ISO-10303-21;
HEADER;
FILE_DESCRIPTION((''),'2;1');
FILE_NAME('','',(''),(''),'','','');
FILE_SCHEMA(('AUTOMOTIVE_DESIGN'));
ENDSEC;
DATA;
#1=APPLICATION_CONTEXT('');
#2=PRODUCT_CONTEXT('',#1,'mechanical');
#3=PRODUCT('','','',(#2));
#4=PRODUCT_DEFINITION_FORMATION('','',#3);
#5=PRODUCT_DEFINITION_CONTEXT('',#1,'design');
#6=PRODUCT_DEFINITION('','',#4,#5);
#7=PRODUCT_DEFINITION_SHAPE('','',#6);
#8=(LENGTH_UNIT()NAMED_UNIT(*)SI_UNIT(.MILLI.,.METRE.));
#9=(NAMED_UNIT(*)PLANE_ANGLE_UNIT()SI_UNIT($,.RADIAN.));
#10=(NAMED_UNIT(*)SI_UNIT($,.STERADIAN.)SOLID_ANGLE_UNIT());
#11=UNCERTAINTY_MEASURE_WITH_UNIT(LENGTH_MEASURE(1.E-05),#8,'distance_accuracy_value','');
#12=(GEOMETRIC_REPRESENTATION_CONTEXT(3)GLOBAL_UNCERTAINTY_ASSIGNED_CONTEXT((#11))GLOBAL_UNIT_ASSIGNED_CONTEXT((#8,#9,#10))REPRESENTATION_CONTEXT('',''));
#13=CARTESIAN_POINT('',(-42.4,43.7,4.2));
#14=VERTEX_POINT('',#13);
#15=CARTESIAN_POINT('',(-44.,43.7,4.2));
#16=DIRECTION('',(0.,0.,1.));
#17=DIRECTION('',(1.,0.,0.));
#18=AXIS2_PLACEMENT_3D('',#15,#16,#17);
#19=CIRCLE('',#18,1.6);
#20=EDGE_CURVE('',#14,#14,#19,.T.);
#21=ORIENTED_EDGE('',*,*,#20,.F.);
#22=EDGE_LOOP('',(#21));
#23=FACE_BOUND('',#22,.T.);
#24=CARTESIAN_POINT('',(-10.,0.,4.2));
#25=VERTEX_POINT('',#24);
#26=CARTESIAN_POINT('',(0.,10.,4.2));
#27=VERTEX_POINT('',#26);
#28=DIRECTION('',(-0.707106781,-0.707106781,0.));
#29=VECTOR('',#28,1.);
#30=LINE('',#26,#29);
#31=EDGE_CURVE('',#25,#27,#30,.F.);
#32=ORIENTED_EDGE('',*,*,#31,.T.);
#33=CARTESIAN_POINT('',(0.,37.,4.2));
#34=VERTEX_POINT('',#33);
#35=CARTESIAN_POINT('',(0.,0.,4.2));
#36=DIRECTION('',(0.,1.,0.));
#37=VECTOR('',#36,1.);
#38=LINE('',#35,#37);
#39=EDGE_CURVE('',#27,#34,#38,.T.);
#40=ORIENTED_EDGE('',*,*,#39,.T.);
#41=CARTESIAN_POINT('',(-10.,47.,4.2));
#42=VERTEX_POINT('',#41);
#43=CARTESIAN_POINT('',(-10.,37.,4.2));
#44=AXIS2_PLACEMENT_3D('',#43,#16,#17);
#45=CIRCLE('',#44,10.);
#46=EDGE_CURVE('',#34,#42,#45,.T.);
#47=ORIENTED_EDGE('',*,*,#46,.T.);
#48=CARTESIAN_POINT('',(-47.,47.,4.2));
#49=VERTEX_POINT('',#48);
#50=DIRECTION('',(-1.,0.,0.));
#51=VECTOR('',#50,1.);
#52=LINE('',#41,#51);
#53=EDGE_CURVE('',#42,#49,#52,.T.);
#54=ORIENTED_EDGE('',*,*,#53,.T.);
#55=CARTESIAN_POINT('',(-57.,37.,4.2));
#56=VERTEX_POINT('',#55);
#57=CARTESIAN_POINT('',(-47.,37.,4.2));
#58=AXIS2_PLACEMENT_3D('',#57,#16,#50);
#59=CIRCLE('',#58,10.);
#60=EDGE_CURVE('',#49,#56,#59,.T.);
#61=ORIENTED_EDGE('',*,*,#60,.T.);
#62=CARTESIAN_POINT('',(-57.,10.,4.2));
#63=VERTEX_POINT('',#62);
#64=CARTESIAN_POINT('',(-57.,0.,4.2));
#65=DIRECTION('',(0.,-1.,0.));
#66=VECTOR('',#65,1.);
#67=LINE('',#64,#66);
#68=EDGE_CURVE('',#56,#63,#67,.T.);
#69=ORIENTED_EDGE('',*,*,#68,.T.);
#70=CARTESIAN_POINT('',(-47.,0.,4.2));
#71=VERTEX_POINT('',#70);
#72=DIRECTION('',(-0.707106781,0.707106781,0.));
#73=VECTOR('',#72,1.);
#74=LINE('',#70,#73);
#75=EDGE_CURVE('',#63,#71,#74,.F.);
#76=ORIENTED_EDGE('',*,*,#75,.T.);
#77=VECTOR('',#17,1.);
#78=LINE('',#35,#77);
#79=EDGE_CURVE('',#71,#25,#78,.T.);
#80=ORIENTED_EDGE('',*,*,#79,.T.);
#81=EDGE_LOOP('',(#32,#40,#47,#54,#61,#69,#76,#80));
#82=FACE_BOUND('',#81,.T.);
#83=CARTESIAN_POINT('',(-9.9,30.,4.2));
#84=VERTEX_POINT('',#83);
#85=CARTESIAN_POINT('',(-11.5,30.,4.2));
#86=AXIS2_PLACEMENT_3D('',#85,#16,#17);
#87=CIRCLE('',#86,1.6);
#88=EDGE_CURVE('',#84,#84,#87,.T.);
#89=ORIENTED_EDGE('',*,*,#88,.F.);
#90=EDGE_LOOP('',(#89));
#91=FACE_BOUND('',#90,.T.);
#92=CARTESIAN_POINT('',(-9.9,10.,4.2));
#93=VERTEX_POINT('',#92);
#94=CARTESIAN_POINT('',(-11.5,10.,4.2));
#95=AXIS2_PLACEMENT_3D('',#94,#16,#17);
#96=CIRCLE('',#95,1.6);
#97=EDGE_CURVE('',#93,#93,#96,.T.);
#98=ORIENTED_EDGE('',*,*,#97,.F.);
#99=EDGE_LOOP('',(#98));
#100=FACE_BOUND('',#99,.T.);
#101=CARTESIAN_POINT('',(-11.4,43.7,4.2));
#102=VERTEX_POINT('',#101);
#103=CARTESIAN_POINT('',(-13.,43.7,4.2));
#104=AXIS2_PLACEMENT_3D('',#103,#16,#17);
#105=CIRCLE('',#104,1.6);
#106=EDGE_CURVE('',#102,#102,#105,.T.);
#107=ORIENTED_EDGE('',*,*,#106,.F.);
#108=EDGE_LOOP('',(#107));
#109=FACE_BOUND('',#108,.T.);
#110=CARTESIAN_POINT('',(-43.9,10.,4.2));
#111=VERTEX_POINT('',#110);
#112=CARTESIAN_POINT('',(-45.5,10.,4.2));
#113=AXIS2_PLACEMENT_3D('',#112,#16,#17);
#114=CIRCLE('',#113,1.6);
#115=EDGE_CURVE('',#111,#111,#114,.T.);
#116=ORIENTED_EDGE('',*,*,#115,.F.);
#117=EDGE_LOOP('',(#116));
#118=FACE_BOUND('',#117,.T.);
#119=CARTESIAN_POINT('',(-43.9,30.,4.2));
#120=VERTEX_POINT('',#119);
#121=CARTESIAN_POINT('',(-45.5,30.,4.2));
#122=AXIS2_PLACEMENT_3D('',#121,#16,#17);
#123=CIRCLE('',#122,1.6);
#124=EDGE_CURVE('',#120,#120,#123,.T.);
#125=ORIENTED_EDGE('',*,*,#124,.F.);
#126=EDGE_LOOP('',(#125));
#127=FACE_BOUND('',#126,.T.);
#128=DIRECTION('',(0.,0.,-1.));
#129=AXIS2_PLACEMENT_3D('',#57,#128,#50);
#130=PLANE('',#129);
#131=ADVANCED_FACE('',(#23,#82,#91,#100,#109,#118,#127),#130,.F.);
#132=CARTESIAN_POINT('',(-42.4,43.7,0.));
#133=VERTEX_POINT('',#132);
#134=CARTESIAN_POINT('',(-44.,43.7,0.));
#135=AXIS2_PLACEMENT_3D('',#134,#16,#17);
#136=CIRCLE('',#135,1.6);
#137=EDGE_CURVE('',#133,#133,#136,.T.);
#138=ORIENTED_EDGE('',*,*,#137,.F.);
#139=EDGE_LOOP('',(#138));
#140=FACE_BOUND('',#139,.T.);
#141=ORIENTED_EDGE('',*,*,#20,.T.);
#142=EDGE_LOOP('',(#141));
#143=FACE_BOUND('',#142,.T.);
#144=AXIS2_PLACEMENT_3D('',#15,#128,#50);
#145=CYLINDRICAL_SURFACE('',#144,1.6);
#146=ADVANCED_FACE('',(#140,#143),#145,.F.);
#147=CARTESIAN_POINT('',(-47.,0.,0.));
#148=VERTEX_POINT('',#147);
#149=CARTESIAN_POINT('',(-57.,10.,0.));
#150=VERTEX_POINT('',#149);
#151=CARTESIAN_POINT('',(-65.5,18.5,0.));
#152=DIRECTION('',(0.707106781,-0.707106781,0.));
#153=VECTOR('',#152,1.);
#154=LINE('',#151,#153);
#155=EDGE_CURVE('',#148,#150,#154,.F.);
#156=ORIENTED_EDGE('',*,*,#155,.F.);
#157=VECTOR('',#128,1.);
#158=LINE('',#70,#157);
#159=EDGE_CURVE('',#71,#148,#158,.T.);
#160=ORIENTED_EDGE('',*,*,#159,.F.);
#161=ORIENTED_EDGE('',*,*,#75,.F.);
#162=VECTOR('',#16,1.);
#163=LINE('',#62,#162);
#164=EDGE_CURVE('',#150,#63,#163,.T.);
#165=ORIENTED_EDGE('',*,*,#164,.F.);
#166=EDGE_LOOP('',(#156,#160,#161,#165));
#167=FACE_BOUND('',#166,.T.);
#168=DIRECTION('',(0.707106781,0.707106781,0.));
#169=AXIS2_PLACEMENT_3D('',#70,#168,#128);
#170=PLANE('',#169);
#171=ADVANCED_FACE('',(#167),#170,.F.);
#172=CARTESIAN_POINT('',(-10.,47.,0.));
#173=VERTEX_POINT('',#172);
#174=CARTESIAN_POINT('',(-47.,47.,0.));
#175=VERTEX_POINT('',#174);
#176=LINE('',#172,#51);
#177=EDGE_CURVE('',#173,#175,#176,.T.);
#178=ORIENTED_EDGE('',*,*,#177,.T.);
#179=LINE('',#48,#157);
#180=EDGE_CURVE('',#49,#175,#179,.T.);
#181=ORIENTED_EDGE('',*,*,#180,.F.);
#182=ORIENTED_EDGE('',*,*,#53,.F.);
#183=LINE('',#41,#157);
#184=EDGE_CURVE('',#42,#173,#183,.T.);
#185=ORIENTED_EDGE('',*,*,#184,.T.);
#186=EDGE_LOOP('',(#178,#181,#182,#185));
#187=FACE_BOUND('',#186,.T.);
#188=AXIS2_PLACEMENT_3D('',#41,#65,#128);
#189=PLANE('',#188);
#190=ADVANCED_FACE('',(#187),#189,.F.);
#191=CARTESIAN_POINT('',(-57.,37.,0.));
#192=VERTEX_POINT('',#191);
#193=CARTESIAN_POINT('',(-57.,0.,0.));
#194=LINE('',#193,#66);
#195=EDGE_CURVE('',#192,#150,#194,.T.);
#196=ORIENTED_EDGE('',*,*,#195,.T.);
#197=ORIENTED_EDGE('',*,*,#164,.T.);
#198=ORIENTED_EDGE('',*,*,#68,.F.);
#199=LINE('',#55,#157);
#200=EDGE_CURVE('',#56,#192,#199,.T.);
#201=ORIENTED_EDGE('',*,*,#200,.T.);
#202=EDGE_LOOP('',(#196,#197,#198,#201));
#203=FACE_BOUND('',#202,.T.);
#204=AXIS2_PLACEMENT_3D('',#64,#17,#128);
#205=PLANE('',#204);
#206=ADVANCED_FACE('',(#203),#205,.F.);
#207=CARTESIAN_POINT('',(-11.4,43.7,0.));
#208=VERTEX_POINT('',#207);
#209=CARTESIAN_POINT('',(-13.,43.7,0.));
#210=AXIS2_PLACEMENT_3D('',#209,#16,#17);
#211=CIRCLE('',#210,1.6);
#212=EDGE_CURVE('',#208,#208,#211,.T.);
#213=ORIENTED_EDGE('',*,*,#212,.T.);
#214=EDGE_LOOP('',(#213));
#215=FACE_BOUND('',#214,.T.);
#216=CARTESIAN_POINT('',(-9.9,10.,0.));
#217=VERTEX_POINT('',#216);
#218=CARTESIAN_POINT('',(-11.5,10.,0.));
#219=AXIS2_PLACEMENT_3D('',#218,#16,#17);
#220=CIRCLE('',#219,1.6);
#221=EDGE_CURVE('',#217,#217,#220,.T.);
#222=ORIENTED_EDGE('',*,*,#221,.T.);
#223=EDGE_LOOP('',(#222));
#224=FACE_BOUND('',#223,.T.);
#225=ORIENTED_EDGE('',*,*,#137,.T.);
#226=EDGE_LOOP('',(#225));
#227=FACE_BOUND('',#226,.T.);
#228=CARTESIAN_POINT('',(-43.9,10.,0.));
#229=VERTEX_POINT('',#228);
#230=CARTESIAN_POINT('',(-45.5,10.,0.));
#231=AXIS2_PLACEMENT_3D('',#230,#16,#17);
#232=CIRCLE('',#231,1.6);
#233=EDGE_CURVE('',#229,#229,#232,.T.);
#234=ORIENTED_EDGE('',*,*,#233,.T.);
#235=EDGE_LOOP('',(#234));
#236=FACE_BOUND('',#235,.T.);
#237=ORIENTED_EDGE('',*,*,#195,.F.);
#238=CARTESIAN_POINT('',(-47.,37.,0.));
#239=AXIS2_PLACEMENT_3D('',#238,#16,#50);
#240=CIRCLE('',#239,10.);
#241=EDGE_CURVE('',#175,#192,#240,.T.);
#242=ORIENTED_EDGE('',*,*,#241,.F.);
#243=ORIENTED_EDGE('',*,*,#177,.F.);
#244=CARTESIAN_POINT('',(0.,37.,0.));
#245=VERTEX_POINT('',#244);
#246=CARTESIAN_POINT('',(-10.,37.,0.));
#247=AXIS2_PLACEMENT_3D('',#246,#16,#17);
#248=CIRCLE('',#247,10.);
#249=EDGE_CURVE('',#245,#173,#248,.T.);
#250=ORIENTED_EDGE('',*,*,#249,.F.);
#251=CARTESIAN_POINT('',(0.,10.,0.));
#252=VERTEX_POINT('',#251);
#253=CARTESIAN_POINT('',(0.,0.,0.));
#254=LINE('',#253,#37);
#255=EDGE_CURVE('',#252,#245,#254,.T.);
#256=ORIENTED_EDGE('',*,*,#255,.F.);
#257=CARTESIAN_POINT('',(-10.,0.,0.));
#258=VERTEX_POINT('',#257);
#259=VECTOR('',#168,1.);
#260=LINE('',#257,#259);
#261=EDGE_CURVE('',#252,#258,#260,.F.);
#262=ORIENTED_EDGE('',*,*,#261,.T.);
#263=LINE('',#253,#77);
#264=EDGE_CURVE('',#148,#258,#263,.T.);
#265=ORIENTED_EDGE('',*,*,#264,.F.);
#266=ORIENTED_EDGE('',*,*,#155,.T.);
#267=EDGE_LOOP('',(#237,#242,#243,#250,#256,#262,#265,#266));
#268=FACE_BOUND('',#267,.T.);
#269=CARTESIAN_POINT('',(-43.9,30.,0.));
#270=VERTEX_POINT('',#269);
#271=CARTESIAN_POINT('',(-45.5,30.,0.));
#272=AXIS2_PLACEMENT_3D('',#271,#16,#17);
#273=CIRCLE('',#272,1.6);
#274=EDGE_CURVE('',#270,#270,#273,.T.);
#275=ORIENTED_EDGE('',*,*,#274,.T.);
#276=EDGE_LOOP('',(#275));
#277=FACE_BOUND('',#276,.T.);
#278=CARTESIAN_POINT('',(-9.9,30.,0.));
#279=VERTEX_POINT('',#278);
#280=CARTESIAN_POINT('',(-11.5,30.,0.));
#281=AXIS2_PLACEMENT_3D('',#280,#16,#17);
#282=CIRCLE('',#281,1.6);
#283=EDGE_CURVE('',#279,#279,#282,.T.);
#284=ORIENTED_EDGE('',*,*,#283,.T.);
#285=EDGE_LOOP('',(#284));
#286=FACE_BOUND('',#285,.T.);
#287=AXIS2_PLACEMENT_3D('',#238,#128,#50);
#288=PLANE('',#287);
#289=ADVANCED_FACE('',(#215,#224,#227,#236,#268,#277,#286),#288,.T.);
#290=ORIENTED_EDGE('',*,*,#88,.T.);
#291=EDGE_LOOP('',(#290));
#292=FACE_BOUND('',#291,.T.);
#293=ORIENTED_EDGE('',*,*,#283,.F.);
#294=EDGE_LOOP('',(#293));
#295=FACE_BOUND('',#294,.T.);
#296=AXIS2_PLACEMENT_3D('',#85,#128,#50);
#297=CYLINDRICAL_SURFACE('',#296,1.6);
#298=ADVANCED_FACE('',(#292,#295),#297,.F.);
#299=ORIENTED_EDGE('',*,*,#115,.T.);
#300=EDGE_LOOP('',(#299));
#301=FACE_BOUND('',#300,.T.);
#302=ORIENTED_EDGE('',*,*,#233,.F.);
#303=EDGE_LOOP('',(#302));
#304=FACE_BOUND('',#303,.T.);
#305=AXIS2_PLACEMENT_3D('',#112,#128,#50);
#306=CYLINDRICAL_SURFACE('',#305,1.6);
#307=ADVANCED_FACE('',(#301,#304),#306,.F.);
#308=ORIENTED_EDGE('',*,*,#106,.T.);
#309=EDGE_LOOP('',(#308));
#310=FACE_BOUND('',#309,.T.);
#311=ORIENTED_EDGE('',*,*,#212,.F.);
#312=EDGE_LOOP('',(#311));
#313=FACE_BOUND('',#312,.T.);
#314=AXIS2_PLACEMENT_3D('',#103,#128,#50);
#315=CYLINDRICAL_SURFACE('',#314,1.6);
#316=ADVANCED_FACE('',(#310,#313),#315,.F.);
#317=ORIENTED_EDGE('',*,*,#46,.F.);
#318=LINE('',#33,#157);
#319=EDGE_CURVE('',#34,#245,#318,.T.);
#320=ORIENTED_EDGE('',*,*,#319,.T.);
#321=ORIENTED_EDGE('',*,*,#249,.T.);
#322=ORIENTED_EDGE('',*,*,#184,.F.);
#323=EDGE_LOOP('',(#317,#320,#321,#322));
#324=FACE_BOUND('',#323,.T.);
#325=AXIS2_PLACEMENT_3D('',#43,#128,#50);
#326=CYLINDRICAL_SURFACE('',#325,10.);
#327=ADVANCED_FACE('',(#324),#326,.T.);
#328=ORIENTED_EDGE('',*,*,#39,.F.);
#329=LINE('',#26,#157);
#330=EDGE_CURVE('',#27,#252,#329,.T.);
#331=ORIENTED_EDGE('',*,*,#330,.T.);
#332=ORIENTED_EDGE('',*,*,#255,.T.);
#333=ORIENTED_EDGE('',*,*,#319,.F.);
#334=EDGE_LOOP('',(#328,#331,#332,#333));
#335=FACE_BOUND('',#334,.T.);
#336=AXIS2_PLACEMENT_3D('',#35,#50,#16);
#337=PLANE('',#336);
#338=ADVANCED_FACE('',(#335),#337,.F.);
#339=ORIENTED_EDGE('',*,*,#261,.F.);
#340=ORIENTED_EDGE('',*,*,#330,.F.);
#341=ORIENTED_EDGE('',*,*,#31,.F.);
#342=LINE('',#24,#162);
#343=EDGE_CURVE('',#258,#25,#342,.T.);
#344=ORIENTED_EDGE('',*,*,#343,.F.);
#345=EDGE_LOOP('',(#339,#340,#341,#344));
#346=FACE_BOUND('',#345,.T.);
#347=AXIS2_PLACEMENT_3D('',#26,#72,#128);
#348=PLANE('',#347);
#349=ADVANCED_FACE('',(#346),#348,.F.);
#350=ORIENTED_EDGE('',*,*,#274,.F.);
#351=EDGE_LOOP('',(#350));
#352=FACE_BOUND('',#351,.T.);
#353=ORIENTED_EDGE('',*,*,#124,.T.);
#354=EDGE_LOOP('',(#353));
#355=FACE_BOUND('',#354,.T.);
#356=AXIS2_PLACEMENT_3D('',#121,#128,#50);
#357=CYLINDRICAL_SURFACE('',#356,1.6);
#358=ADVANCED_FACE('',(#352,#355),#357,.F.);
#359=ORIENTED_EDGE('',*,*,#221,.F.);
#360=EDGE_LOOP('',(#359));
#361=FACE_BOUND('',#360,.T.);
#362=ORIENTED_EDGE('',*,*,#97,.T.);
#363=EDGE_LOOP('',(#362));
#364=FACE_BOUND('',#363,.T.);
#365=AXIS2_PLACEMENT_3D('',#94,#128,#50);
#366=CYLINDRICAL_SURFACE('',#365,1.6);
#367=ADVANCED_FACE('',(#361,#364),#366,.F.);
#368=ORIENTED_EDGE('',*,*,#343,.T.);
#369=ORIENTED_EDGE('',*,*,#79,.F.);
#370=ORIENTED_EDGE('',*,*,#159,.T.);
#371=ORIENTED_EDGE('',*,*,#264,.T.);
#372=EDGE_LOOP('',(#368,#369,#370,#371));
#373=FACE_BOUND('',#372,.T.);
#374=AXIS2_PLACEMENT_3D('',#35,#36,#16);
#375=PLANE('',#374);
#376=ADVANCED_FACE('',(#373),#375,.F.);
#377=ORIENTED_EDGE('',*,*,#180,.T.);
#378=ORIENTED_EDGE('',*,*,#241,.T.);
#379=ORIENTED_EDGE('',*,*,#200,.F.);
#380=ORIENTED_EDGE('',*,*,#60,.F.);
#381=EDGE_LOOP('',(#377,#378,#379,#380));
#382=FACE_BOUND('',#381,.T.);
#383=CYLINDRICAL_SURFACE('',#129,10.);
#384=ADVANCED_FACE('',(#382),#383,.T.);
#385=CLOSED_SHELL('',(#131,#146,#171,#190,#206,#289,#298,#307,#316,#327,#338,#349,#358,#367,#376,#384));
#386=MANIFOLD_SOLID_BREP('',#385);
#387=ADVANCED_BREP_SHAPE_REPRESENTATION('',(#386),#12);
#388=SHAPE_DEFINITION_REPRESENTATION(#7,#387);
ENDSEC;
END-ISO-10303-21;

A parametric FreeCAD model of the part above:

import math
import FreeCAD as App
import Part
import Sketcher
from FreeCAD import Vector
Q = App.Units.Quantity


def edges_at(feature, points):
    """Names of the edges that pass closest to the given points."""
    edges = feature.Shape.Edges
    near = lambda p: min(range(len(edges)), key=lambda i: edges[i].distToShape(Part.Vertex(*p))[0])
    return sorted({f"Edge{near(p) + 1}" for p in points})

doc = App.newDocument("Part")
body = doc.addObject("PartDesign::Body", "Body")

sketch1 = body.newObject("Sketcher::SketchObject", "Sketch")
sketch1.AttachmentSupport = (doc.getObject("XY_Plane"), [""])
sketch1.MapMode = "FlatFace"
sketch1.addGeometry([
    Part.LineSegment(Vector(0, 0, 0), Vector(0, 37, 0)),
    Part.ArcOfCircle(Part.Circle(Vector(-10, 37, 0), Vector(0, 0, 1), 10), math.radians(0), math.radians(90)),
    Part.LineSegment(Vector(-10, 47, 0), Vector(-47, 47, 0)),
    Part.ArcOfCircle(Part.Circle(Vector(-47, 37, 0), Vector(0, 0, 1), 10), math.radians(90), math.radians(180)),
    Part.LineSegment(Vector(-57, 37, 0), Vector(-57, 0, 0)),
    Part.LineSegment(Vector(-57, 0, 0), Vector(0, 0, 0)),
    Part.Circle(Vector(-11.5, 10, 0), Vector(0, 0, 1), 1.6),
    Part.Circle(Vector(-11.5, 30, 0), Vector(0, 0, 1), 1.6),
    Part.Circle(Vector(-13, 43.7, 0), Vector(0, 0, 1), 1.6),
    Part.Circle(Vector(-45.5, 10, 0), Vector(0, 0, 1), 1.6),
    Part.Circle(Vector(-45.5, 30, 0), Vector(0, 0, 1), 1.6),
    Part.Circle(Vector(-44, 43.7, 0), Vector(0, 0, 1), 1.6),
], False)
sketch1.addConstraint([
    Sketcher.Constraint("Tangent", 0, 2, 1, 1),
    Sketcher.Constraint("Tangent", 1, 2, 2, 1),
    Sketcher.Constraint("Tangent", 2, 2, 3, 1),
    Sketcher.Constraint("Tangent", 3, 2, 4, 1),
    Sketcher.Constraint("Coincident", 4, 2, 5, 1),
    Sketcher.Constraint("Coincident", 5, 2, 0, 1),
    Sketcher.Constraint("Vertical", 0),
    Sketcher.Constraint("Horizontal", 2),
    Sketcher.Constraint("Vertical", 4),
    Sketcher.Constraint("Horizontal", 5),
    Sketcher.Constraint("Coincident", 5, 2, -1, 1),
    Sketcher.Constraint("Equal", 1, 3),
    Sketcher.Constraint("Equal", 6, 7),
    Sketcher.Constraint("Equal", 7, 8),
    Sketcher.Constraint("Equal", 8, 9),
    Sketcher.Constraint("Equal", 9, 10),
    Sketcher.Constraint("Equal", 10, 11),
    Sketcher.Constraint("Horizontal", 6, 3, 9, 3),
    Sketcher.Constraint("Horizontal", 7, 3, 10, 3),
    Sketcher.Constraint("Horizontal", 8, 3, 11, 3),
    Sketcher.Constraint("Vertical", 6, 3, 7, 3),
    Sketcher.Constraint("Vertical", 9, 3, 10, 3),
    Sketcher.Constraint("Equal", 2, 0),
    Sketcher.Constraint("Radius", 1, Q("10 mm")),
    Sketcher.Constraint("Diameter", 6, Q("3.2 mm")),
    Sketcher.Constraint("DistanceX", 2, 2, 2, 1, Q("37 mm")),
    Sketcher.Constraint("DistanceY", -1, 1, 6, 3, Q("10 mm")),
    Sketcher.Constraint("DistanceY", -1, 1, 7, 3, Q("30 mm")),
    Sketcher.Constraint("DistanceX", 8, 3, -1, 1, Q("13 mm")),
    Sketcher.Constraint("DistanceX", 11, 3, -1, 1, Q("44 mm")),
    Sketcher.Constraint("DistanceX", 9, 3, 6, 3, Q("34 mm")),
    Sketcher.Constraint("DistanceX", 6, 3, -1, 1, Q("11.5 mm")),
    Sketcher.Constraint("DistanceY", -1, 1, 8, 3, Q("43.7 mm")),
])
pad1 = body.newObject("PartDesign::Pad", "Pad")
pad1.Profile = sketch1
pad1.Length = 4.2
doc.recompute()

chamfer = body.newObject("PartDesign::Chamfer", "Chamfer")
chamfer.Base = (pad1, edges_at(pad1, [(-57, 0, 2.1), (0, 0, 2.1)]))
chamfer.Size = 10

doc.recompute()
